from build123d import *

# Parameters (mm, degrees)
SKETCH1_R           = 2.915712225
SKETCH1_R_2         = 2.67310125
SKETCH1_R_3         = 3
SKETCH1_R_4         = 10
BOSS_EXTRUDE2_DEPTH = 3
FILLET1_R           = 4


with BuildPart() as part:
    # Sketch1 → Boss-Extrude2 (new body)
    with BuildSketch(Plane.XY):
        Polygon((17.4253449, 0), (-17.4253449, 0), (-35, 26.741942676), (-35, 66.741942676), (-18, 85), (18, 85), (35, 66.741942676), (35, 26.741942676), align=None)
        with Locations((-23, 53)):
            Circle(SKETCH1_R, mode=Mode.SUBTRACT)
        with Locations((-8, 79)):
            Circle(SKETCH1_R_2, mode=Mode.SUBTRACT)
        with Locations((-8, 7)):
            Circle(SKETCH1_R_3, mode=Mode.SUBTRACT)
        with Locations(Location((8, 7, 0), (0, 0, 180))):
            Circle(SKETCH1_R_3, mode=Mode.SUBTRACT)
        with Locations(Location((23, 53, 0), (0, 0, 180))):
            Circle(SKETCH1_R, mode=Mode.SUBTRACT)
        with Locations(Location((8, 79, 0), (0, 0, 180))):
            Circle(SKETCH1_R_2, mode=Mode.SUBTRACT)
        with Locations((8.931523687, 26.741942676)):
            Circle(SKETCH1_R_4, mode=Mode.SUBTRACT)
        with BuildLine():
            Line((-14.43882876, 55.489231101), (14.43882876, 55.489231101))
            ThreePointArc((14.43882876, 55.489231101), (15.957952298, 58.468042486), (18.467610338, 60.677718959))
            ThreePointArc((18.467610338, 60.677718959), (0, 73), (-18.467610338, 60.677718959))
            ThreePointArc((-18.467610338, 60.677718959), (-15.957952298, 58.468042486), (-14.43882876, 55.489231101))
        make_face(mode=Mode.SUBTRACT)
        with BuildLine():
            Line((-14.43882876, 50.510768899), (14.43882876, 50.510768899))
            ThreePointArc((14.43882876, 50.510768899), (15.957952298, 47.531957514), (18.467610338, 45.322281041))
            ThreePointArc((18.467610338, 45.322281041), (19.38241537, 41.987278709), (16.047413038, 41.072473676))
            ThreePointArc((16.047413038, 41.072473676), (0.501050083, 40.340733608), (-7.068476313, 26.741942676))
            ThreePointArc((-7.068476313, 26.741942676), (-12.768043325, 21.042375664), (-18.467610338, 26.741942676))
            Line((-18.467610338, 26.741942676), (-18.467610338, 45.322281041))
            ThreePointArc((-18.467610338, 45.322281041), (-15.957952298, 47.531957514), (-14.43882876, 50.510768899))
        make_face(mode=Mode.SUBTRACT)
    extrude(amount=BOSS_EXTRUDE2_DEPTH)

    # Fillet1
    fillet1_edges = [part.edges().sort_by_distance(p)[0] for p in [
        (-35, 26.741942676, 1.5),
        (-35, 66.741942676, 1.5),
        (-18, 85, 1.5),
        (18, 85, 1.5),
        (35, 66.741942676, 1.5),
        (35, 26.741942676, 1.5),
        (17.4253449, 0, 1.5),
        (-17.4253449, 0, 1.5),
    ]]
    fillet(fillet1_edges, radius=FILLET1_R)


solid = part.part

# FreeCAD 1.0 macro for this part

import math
import FreeCAD as App
import Part
import Sketcher


def edges_at(feature, points):
    """Names of the edges that pass closest to the given points."""
    edges = feature.Shape.Edges
    near = lambda p: min(range(len(edges)), key=lambda i: edges[i].distToShape(Part.Vertex(*p))[0])
    return sorted({f"Edge{near(p) + 1}" for p in points})


def add_polygon(sketch, points):
    """Adds a closed chain of lines whose ends are joined by coincident constraints."""
    first, n = sketch.GeometryCount, len(points)
    for a, b in zip(points, points[1:] + points[:1]):
        sketch.addGeometry(Part.LineSegment(App.Vector(*a, 0), App.Vector(*b, 0)), False)
    for i in range(n):
        sketch.addConstraint(Sketcher.Constraint("Coincident", first + i, 2, first + (i + 1) % n, 1))

doc = App.newDocument("Part")
body = doc.addObject("PartDesign::Body", "Body")

sketch1 = body.newObject("Sketcher::SketchObject", "Sketch")
sketch1.AttachmentSupport = (doc.getObject("XY_Plane"), [""])
sketch1.MapMode = "FlatFace"
add_polygon(sketch1, [(-17.425345, 0), (17.425345, 0), (35, 26.741943), (35, 66.741943), (18, 85), (-18, 85), (-35, 66.741943), (-35, 26.741943)])
sketch1.addGeometry(Part.Circle(App.Vector(8, 7, 0), App.Vector(0, 0, 1), 3), False)
sketch1.addGeometry(Part.Circle(App.Vector(8.931524, 26.741943, 0), App.Vector(0, 0, 1), 10), False)
sketch1.addGeometry(Part.LineSegment(App.Vector(-14.438829, 50.510769, 0), App.Vector(14.438829, 50.510769, 0)), False)
sketch1.addGeometry(Part.ArcOfCircle(Part.Circle(App.Vector(23, 53, 0), App.Vector(0, 0, 1), 8.915712), math.radians(-163.787775), math.radians(-120.554638)), False)
sketch1.addGeometry(Part.ArcOfCircle(Part.Circle(App.Vector(17.257512, 43.197377, 0), App.Vector(0, 0, 1), 2.445313), math.radians(-119.660821), math.radians(60.339179)), False)
sketch1.addGeometry(Part.ArcOfCircle(Part.Circle(App.Vector(8.931524, 26.741943, 0), App.Vector(0, 0, 1), 16), math.radians(63.593097), math.radians(180)), False)
sketch1.addGeometry(Part.ArcOfCircle(Part.Circle(App.Vector(-12.768043, 26.741943, 0), App.Vector(0, 0, 1), 5.699567), math.radians(180), math.radians(360)), False)
sketch1.addGeometry(Part.LineSegment(App.Vector(-18.46761, 26.741943, 0), App.Vector(-18.46761, 45.322281, 0)), False)
sketch1.addGeometry(Part.ArcOfCircle(Part.Circle(App.Vector(-23, 53, 0), App.Vector(0, 0, 1), 8.915712), math.radians(-59.445362), math.radians(-16.212225)), False)
sketch1.addGeometry(Part.Circle(App.Vector(-8, 7, 0), App.Vector(0, 0, 1), 3), False)
sketch1.addGeometry(Part.Circle(App.Vector(23, 53, 0), App.Vector(0, 0, 1), 2.915712), False)
sketch1.addGeometry(Part.Circle(App.Vector(8, 79, 0), App.Vector(0, 0, 1), 2.673101), False)
sketch1.addGeometry(Part.Circle(App.Vector(-23, 53, 0), App.Vector(0, 0, 1), 2.915712), False)
sketch1.addGeometry(Part.ArcOfCircle(Part.Circle(App.Vector(-23, 53, 0), App.Vector(0, 0, 1), 8.915712), math.radians(16.212225), math.radians(59.445362)), False)
sketch1.addGeometry(Part.ArcOfCircle(Part.Circle(App.Vector(0, 53, 0), App.Vector(0, 0, 1), 20), math.radians(22.574596), math.radians(157.425404)), False)
sketch1.addGeometry(Part.ArcOfCircle(Part.Circle(App.Vector(23, 53, 0), App.Vector(0, 0, 1), 8.915712), math.radians(120.554638), math.radians(163.787775)), False)
sketch1.addGeometry(Part.LineSegment(App.Vector(14.438829, 55.489231, 0), App.Vector(-14.438829, 55.489231, 0)), False)
sketch1.addGeometry(Part.Circle(App.Vector(-8, 79, 0), App.Vector(0, 0, 1), 2.673101), False)
sketch1.addConstraint([
    Sketcher.Constraint("Coincident", 10, 2, 11, 1),
    Sketcher.Constraint("Coincident", 11, 2, 12, 2),
    Sketcher.Constraint("Coincident", 12, 1, 13, 1),
    Sketcher.Constraint("Tangent", 13, 2, 14, 2),
    Sketcher.Constraint("Tangent", 14, 1, 15, 1),
    Sketcher.Constraint("Coincident", 15, 2, 16, 1),
    Sketcher.Constraint("Coincident", 16, 2, 10, 1),
    Sketcher.Constraint("Coincident", 21, 2, 22, 2),
    Sketcher.Constraint("Coincident", 22, 1, 23, 1),
    Sketcher.Constraint("Coincident", 23, 2, 24, 1),
    Sketcher.Constraint("Coincident", 24, 2, 21, 1),
    Sketcher.Constraint("Horizontal", 0),
    Sketcher.Constraint("Vertical", 2),
    Sketcher.Constraint("Horizontal", 4),
    Sketcher.Constraint("Vertical", 6),
    Sketcher.Constraint("Horizontal", 10),
    Sketcher.Constraint("Vertical", 15),
    Sketcher.Constraint("Horizontal", 24),
    Sketcher.Constraint("Coincident", 13, 3, 9, 3),
    Sketcher.Constraint("Coincident", 18, 3, 11, 3),
    Sketcher.Constraint("Coincident", 20, 3, 16, 3),
    Sketcher.Constraint("Coincident", 21, 3, 16, 3),
    Sketcher.Constraint("Coincident", 23, 3, 11, 3),
    Sketcher.Constraint("Equal", 11, 16),
    Sketcher.Constraint("Equal", 8, 17),
    Sketcher.Constraint("Equal", 18, 20),
    Sketcher.Constraint("Equal", 16, 21),
    Sketcher.Constraint("Equal", 21, 23),
    Sketcher.Constraint("Equal", 19, 25),
    Sketcher.Constraint("Symmetric", 0, 2, 7, 2, -1, 1),
    Sketcher.Constraint("Symmetric", 11, 3, 16, 3, -2),
    Sketcher.Constraint("Symmetric", 8, 3, 17, 3, -2),
    Sketcher.Constraint("Symmetric", 19, 3, 25, 3, -2),
    Sketcher.Constraint("Symmetric", 2, 2, 5, 2, -2),
    Sketcher.Constraint("PointOnObject", 22, 3, -2),
    Sketcher.Constraint("Horizontal", 13, 3, 14, 3),
    Sketcher.Constraint("Horizontal", 21, 3, 22, 3),
    Sketcher.Constraint("Horizontal", 14, 3, 1, 2),
    Sketcher.Constraint("Horizontal", 1, 2, 6, 2),
    Sketcher.Constraint("Horizontal", 11, 2, 15, 2),
    Sketcher.Constraint("Vertical", 8, 3, 19, 3),
    Sketcher.Constraint("Vertical", 15, 2, 21, 2),
    Sketcher.Constraint("Vertical", 10, 2, 23, 2),
    Sketcher.Constraint("Equal", 3, 5),
    Sketcher.Constraint("Diameter", 8, 6.0),
    Sketcher.Constraint("Diameter", 9, 20.0),
    Sketcher.Constraint("Radius", 13, 16.0),
    Sketcher.Constraint("Radius", 22, 20.0),
    Sketcher.Constraint("DistanceX", 4, 2, 4, 1, 36.0),
    Sketcher.Constraint("DistanceY", 2, 1, 2, 2, 40.0),
    Sketcher.Constraint("Distance", 1, 32.0),
    Sketcher.Constraint("DistanceX", -1, 1, 8, 3, 8.0),
    Sketcher.Constraint("DistanceY", -1, 1, 8, 3, 7.0),
    Sketcher.Constraint("DistanceX", -1, 1, 11, 3, 23.0),
    Sketcher.Constraint("DistanceY", -1, 1, 11, 3, 53.0),
    Sketcher.Constraint("DistanceY", -1, 1, 19, 3, 79.0),
    Sketcher.Constraint("DistanceX", -1, 1, 1, 2, 35.0),
    Sketcher.Constraint("DistanceY", -1, 1, 3, 2, 85.0),
    Sketcher.Constraint("Diameter", 18, 5.831424),
    Sketcher.Constraint("Diameter", 19, 5.346203),
    Sketcher.Constraint("Radius", 11, 8.915712),
    Sketcher.Constraint("Radius", 12, 2.445313),
    Sketcher.Constraint("Radius", 14, 5.699567),
    Sketcher.Constraint("DistanceX", 0, 1, 0, 2, 34.85069),
    Sketcher.Constraint("DistanceX", 12, 3, 11, 2, 1.210099),
    Sketcher.Constraint("DistanceX", 10, 1, 10, 2, 28.877658),
])
pad1 = body.newObject("PartDesign::Pad", "Pad")
pad1.Profile = sketch1
pad1.Length = 3
doc.recompute()

fillet = body.newObject("PartDesign::Fillet", "Fillet")
fillet.Base = (pad1, edges_at(pad1, [
    (-35, 26.742, 1.5),
    (-35, 66.742, 1.5),
    (-18, 85, 1.5),
    (18, 85, 1.5),
    (35, 66.742, 1.5),
    (35, 26.742, 1.5),
    (17.425, 0, 1.5),
    (-17.425, 0, 1.5),
]))
fillet.Radius = 4

doc.recompute()
